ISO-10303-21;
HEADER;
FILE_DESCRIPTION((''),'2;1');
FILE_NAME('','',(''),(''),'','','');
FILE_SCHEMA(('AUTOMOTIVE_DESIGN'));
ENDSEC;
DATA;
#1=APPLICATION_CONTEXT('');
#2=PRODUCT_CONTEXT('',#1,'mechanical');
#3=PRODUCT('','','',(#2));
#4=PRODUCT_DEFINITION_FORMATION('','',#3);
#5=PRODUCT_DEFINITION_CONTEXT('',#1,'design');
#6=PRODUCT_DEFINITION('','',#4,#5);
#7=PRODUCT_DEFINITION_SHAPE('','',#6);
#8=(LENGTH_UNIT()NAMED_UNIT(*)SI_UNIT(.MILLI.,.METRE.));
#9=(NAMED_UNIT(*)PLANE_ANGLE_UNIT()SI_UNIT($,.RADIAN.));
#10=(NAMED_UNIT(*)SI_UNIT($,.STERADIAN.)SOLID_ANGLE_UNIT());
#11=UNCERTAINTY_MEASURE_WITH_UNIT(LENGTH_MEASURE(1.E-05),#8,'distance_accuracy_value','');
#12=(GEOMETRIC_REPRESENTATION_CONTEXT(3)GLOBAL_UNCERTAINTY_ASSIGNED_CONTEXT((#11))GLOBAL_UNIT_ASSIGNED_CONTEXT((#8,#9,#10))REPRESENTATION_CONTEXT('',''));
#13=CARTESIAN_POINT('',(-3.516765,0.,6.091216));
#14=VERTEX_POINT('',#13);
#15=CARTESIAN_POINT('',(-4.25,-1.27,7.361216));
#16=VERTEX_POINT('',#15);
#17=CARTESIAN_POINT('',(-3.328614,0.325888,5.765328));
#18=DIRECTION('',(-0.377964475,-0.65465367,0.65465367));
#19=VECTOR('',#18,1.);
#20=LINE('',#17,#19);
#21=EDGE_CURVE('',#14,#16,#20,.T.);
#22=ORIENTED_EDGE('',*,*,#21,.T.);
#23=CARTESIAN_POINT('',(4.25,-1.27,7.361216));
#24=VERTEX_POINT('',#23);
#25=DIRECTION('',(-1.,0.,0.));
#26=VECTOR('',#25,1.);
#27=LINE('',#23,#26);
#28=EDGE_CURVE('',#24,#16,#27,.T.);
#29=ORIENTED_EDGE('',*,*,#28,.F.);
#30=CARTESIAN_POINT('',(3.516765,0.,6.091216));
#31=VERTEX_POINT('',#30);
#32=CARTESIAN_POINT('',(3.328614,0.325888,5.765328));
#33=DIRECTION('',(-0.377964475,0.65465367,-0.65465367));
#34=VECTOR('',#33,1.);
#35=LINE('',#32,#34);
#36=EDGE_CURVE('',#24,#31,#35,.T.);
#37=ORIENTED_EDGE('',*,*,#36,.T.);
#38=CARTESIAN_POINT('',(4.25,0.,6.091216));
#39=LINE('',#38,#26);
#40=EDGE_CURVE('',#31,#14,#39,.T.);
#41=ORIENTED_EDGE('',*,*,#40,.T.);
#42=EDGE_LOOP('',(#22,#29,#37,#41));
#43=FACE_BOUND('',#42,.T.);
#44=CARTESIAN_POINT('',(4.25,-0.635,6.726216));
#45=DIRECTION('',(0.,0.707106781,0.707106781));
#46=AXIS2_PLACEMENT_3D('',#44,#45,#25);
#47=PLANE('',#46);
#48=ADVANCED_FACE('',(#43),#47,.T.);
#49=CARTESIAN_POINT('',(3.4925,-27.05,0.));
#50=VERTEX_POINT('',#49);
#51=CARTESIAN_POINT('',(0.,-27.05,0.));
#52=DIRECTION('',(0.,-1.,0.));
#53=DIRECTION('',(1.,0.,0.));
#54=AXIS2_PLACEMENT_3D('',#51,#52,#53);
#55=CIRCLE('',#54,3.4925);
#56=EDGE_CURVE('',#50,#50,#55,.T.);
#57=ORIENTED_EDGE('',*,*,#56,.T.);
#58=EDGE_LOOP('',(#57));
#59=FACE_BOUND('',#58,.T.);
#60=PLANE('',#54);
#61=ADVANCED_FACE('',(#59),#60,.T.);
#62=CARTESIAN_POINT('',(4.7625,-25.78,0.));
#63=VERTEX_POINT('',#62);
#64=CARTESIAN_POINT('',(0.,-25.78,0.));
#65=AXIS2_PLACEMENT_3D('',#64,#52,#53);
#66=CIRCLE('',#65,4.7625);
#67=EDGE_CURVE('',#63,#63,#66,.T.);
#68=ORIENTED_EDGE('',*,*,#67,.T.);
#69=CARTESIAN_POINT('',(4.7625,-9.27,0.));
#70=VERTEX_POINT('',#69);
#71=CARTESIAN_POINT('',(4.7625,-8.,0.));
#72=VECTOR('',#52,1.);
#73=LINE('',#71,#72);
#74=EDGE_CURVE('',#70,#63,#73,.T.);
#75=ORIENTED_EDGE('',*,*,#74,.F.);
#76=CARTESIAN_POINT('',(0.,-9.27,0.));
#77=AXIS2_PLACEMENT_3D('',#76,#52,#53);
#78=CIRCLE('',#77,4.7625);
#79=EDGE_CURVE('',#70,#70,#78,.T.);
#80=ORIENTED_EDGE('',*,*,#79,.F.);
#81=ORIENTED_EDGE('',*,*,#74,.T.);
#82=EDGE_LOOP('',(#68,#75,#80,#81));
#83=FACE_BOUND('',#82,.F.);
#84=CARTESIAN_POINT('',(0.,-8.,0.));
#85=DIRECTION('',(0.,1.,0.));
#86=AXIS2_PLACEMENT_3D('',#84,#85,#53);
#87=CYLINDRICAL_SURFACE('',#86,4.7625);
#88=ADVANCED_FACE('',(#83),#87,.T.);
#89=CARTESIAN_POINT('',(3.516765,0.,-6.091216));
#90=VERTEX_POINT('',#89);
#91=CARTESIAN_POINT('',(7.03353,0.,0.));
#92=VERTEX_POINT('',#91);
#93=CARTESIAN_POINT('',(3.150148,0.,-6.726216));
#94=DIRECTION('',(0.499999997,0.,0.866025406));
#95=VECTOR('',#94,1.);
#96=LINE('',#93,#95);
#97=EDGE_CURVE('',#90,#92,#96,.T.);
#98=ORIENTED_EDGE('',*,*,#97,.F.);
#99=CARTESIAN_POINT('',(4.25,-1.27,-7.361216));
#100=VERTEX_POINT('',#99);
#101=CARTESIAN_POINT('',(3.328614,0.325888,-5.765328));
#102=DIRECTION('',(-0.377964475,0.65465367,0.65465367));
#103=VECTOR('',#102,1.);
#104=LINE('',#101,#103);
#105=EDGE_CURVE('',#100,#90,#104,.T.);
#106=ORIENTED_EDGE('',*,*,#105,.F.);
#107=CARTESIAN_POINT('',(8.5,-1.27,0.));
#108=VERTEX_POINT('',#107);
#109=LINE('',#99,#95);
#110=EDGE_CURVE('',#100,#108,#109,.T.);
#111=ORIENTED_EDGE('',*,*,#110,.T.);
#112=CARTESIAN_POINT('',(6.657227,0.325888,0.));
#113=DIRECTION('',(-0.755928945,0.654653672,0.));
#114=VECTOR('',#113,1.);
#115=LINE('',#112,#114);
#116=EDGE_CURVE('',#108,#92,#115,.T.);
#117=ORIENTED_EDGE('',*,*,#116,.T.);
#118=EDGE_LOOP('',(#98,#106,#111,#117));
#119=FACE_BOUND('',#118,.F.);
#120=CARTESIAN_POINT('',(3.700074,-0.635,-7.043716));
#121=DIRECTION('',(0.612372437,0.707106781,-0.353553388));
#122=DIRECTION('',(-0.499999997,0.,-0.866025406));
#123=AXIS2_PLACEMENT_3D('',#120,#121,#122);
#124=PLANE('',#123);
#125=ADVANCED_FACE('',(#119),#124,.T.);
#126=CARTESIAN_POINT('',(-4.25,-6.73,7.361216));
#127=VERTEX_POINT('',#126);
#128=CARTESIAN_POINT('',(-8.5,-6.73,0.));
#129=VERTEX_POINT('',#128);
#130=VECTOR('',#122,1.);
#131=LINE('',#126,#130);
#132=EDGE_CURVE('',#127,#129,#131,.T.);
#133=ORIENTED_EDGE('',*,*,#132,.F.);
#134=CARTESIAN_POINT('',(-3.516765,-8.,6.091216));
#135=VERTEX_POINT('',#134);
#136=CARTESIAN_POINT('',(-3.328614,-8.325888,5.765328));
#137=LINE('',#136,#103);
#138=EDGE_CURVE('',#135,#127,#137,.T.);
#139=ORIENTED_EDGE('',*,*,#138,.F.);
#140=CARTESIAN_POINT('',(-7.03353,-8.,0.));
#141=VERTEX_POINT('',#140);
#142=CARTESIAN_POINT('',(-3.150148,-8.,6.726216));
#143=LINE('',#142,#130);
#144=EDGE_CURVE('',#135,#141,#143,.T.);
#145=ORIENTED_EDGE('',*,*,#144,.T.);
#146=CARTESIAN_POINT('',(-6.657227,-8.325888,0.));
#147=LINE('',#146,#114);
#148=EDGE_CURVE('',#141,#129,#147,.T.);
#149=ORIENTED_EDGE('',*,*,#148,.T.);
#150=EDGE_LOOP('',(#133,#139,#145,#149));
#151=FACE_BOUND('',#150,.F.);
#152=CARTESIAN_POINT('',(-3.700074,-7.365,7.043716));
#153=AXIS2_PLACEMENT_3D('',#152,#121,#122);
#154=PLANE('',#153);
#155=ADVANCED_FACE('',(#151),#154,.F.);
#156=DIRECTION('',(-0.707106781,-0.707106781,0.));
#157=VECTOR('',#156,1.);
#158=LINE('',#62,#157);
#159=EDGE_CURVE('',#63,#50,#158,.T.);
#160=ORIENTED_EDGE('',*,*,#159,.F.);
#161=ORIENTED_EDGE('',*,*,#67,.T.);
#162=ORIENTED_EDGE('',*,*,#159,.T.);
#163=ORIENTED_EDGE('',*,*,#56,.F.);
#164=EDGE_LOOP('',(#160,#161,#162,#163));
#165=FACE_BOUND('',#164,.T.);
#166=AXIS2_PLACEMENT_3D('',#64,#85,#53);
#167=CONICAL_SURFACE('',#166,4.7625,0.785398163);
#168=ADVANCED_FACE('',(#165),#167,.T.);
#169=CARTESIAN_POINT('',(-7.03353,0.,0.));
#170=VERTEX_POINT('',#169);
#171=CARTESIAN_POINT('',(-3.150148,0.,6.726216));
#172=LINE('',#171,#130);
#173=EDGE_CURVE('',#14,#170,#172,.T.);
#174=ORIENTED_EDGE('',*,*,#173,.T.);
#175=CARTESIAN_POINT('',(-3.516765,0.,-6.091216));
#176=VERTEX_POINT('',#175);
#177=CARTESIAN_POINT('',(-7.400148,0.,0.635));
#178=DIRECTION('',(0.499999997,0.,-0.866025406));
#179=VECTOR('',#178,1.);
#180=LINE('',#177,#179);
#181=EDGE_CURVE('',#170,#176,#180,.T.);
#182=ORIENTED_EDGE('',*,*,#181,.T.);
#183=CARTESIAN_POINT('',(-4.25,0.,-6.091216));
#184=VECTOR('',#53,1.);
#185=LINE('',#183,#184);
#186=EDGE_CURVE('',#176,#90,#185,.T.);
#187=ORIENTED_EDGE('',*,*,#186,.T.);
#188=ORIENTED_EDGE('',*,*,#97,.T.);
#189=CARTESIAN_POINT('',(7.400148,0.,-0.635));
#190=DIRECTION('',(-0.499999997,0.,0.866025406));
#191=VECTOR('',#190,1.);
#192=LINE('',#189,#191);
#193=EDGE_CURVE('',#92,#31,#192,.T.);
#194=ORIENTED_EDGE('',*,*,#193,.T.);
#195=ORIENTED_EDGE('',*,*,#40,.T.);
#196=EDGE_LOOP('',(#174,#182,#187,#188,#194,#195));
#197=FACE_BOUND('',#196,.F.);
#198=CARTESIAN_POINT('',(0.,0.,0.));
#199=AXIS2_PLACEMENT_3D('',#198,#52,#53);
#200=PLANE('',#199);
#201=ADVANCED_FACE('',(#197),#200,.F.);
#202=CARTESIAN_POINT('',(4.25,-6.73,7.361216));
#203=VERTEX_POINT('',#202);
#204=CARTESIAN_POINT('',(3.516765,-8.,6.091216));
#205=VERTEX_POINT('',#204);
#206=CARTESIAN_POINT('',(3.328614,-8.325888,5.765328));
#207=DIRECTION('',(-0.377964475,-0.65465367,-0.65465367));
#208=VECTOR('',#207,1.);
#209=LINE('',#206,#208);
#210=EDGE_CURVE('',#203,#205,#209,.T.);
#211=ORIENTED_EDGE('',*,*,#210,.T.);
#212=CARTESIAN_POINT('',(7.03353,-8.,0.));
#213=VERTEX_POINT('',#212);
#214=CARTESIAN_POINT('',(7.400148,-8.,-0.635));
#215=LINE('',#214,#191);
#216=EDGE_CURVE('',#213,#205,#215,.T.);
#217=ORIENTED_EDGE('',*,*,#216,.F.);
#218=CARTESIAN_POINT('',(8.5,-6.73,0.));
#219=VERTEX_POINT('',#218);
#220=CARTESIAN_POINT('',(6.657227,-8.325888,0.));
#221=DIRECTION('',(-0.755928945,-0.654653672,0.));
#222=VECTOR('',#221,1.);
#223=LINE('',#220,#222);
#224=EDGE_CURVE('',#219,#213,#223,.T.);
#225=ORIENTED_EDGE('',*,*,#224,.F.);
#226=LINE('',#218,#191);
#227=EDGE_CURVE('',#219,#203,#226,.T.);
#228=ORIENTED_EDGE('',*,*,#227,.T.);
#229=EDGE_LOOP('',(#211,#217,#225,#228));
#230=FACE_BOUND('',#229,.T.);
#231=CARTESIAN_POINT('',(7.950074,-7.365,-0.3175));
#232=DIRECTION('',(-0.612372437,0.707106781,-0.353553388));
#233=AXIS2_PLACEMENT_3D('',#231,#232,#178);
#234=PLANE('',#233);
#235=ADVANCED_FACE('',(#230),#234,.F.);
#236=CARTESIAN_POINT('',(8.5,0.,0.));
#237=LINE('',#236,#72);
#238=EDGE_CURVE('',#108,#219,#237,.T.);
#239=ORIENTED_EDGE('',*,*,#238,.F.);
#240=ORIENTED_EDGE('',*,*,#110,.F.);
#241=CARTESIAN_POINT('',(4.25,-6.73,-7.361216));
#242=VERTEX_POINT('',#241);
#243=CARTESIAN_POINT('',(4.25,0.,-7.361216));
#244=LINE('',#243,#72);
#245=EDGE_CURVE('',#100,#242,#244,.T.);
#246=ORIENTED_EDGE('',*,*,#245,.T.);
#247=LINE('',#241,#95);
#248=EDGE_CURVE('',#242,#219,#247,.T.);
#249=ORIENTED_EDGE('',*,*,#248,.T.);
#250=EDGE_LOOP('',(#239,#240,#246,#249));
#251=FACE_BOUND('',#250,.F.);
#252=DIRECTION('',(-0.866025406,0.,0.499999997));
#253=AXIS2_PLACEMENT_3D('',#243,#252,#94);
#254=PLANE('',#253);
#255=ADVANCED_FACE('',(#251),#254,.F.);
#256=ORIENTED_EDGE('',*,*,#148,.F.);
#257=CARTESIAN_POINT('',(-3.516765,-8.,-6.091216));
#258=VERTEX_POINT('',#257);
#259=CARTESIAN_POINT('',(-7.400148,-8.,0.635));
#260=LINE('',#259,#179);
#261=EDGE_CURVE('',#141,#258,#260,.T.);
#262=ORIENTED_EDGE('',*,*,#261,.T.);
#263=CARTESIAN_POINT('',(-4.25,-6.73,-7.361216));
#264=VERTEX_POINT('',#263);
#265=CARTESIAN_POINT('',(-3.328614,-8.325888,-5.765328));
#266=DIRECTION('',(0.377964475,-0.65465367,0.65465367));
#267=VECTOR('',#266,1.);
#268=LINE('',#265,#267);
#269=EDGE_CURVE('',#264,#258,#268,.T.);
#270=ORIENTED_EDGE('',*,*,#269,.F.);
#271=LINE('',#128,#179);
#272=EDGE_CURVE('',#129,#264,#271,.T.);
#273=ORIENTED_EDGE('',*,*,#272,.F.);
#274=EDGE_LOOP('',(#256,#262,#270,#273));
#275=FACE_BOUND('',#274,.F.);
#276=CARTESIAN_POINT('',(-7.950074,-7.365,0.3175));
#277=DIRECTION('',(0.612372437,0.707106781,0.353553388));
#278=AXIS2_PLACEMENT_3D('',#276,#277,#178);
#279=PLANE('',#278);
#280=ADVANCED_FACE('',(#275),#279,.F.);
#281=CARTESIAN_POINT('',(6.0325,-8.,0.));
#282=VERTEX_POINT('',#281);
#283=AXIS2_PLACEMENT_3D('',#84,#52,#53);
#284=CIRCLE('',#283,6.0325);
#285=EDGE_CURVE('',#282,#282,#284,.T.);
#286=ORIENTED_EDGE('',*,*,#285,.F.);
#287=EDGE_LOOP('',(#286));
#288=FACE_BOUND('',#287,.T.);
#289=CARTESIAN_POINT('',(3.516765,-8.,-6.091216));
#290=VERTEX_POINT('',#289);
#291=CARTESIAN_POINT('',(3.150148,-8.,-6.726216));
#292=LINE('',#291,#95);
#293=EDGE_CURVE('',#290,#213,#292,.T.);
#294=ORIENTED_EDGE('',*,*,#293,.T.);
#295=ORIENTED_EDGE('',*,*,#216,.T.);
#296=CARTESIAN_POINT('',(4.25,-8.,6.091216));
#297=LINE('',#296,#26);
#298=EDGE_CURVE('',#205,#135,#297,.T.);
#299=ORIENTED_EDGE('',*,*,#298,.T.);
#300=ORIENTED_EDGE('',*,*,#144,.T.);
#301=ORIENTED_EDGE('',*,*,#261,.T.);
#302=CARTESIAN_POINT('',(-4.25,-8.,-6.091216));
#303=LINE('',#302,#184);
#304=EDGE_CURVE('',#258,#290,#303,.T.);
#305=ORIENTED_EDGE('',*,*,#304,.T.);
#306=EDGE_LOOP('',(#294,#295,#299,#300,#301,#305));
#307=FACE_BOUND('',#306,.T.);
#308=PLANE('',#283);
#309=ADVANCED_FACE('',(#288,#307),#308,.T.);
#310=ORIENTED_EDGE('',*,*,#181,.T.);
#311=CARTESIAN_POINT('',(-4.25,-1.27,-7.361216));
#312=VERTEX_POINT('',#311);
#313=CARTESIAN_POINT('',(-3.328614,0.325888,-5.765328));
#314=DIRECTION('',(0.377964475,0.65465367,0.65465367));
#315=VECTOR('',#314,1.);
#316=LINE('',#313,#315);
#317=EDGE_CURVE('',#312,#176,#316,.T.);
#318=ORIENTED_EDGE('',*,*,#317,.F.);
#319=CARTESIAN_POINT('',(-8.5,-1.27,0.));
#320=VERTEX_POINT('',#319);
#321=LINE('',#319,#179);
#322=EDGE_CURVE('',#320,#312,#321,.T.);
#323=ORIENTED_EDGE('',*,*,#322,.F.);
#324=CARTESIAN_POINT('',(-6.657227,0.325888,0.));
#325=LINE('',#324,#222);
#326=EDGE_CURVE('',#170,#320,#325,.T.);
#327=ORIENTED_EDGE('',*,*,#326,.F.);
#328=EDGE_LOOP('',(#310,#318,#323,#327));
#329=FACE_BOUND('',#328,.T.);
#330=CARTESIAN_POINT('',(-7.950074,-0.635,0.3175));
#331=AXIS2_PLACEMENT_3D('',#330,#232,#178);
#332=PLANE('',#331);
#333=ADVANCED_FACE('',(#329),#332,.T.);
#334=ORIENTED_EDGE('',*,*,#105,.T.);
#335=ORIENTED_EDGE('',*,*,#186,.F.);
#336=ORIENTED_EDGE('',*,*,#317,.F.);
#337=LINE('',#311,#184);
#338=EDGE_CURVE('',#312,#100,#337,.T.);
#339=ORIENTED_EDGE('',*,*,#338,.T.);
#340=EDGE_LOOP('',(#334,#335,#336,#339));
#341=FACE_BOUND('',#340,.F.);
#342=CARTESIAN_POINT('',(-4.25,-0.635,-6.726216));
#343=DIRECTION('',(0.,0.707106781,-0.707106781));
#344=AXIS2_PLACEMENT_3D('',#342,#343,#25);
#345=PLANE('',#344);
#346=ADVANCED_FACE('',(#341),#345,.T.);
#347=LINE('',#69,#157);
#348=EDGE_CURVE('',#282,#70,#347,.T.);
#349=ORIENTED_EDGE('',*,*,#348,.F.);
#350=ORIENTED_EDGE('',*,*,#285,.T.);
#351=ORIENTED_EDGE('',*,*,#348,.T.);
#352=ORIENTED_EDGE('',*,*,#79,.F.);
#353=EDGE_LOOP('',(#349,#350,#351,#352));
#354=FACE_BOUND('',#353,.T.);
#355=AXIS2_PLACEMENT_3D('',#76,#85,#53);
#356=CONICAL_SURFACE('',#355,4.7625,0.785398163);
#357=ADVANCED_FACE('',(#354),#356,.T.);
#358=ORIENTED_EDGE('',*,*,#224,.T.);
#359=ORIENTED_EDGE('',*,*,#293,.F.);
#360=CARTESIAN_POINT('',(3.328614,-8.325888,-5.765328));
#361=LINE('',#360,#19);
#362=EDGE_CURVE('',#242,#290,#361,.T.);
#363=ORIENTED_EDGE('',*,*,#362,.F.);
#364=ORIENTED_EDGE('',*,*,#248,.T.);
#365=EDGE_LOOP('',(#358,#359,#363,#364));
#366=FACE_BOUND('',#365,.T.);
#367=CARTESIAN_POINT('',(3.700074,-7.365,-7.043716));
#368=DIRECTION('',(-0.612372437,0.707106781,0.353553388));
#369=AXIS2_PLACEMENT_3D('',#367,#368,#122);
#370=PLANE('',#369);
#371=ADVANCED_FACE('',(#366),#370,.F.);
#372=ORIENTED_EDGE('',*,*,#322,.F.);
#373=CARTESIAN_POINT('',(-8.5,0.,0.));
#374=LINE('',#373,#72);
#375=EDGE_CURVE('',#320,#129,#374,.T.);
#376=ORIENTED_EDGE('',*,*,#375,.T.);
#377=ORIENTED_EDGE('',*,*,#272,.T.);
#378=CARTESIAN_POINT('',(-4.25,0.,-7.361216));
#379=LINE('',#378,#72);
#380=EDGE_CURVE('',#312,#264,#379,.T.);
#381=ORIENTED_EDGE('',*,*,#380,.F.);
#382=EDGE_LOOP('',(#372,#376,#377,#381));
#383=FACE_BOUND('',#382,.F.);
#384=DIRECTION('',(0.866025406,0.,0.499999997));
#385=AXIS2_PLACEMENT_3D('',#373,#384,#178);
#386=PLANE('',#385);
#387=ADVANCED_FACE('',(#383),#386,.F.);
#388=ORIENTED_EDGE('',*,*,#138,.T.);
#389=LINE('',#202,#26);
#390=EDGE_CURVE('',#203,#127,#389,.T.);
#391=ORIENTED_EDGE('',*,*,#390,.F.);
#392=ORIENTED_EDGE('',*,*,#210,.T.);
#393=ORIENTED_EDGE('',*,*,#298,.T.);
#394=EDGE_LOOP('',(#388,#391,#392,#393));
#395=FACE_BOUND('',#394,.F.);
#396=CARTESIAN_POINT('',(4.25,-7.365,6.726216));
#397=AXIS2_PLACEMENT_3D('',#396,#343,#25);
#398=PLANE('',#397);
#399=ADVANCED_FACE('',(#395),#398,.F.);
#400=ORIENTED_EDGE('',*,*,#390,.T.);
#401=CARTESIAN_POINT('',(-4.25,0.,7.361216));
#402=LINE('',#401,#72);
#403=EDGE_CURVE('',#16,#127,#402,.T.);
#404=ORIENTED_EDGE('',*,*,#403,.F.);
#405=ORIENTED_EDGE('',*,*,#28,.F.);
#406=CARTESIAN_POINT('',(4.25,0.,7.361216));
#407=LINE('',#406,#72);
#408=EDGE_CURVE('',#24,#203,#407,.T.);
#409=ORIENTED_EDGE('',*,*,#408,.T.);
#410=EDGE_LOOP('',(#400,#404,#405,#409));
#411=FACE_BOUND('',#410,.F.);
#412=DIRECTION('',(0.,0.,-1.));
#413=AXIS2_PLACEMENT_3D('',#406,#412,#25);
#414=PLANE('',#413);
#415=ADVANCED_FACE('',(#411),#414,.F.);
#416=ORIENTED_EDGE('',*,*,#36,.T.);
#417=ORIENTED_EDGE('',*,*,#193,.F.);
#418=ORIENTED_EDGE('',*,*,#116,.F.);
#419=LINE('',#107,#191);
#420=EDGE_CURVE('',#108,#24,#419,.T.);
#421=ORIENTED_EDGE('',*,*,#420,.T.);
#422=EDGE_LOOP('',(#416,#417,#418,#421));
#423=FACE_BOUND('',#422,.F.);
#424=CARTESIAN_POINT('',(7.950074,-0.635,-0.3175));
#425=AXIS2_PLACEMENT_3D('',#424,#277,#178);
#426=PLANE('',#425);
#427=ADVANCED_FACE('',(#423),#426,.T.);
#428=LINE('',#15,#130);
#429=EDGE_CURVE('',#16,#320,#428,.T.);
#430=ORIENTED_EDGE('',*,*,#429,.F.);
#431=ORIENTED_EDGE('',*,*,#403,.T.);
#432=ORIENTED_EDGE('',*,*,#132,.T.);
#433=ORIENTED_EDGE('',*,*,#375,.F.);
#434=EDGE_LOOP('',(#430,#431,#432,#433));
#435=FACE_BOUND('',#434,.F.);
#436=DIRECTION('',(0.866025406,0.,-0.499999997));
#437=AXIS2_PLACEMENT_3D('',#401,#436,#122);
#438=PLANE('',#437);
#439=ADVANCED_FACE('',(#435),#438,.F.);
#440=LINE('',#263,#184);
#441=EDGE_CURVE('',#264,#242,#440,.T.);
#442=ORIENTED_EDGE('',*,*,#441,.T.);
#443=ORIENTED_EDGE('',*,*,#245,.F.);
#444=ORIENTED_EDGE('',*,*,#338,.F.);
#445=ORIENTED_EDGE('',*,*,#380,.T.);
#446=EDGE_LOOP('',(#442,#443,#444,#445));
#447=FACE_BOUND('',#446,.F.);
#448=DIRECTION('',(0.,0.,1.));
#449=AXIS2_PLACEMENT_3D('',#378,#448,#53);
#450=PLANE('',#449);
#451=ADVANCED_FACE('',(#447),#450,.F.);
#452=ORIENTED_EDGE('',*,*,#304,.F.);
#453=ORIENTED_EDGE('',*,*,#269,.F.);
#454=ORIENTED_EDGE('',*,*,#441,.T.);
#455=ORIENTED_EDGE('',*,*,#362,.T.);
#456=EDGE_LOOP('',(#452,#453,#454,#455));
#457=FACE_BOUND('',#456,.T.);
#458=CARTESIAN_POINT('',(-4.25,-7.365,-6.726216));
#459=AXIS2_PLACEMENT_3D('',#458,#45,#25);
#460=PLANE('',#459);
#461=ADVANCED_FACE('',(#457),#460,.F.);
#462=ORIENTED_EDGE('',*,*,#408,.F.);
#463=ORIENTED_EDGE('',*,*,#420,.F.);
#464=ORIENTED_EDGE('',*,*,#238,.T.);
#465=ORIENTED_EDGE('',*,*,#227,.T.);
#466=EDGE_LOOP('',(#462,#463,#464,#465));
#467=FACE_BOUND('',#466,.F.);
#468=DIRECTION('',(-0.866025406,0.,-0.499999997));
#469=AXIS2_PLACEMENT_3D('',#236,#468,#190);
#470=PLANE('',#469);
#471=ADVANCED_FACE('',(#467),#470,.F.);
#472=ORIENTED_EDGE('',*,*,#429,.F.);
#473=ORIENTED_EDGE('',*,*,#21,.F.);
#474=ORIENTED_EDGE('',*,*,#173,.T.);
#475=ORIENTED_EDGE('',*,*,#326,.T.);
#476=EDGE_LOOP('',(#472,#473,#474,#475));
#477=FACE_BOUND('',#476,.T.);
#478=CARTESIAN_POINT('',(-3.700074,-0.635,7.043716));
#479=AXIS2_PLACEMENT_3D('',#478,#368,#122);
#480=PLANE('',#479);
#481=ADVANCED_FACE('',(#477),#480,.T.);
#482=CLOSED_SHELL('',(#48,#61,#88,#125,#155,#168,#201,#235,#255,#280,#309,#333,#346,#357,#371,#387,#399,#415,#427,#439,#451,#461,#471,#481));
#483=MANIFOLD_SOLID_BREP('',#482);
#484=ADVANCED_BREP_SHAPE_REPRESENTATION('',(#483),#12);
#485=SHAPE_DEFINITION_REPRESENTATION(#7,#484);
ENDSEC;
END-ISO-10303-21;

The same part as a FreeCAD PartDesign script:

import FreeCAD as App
import Part
import Sketcher
Q = App.Units.Quantity


def edges_at(feature, points):
    """Names of the edges that pass closest to the given points."""
    edges = feature.Shape.Edges
    near = lambda p: min(range(len(edges)), key=lambda i: edges[i].distToShape(Part.Vertex(*p))[0])
    return sorted({f"Edge{near(p) + 1}" for p in points})

doc = App.newDocument("Part")
body = doc.addObject("PartDesign::Body", "Body")

# Sketch on XZ plane
sketch1 = doc.addObject("Sketcher::SketchObject", "Sketch")
body.addObject(sketch1)
sketch1.AttachmentSupport = (doc.XZ_Plane, [""])
sketch1.MapMode = "FlatFace"
sketch1.addGeometry(Part.LineSegment(App.Vector(4, -7, 0), App.Vector(8, 0, 0)), False)
sketch1.addGeometry(Part.LineSegment(App.Vector(8, 0, 0), App.Vector(4, 7, 0)), False)
sketch1.addGeometry(Part.LineSegment(App.Vector(4, 7, 0), App.Vector(-4, 7, 0)), False)
sketch1.addGeometry(Part.LineSegment(App.Vector(-4, 7, 0), App.Vector(-8, 0, 0)), False)
sketch1.addGeometry(Part.LineSegment(App.Vector(-8, 0, 0), App.Vector(-4, -7, 0)), False)
sketch1.addGeometry(Part.LineSegment(App.Vector(-4, -7, 0), App.Vector(4, -7, 0)), False)
sketch1.addConstraint(Sketcher.Constraint("Coincident", 0, 2, 1, 1))
sketch1.addConstraint(Sketcher.Constraint("Coincident", 1, 2, 2, 1))
sketch1.addConstraint(Sketcher.Constraint("Coincident", 2, 2, 3, 1))
sketch1.addConstraint(Sketcher.Constraint("Coincident", 3, 2, 4, 1))
sketch1.addConstraint(Sketcher.Constraint("Coincident", 4, 2, 5, 1))
sketch1.addConstraint(Sketcher.Constraint("Coincident", 5, 2, 0, 1))
sketch1.addConstraint(Sketcher.Constraint("Horizontal", 2))
sketch1.addConstraint(Sketcher.Constraint("Horizontal", 5))
sketch1.addConstraint(Sketcher.Constraint("Symmetric", 0, 2, 3, 2, -1, 1))
sketch1.addConstraint(Sketcher.Constraint("Symmetric", 1, 2, 4, 2, -1, 1))
sketch1.addConstraint(Sketcher.Constraint("PointOnObject", 0, 2, -1))
sketch1.addConstraint(Sketcher.Constraint("Parallel", 0, 3))
sketch1.addConstraint(Sketcher.Constraint("Vertical", 2, 2, 4, 2))
sketch1.addConstraint(Sketcher.Constraint("Angle", 0, Q("60 deg")))
sketch1.addConstraint(Sketcher.Constraint("DistanceX", 2, 2, 2, 1, 8.5))
sketch1.addConstraint(Sketcher.Constraint("Distance", 0, 8.5))
pad1 = doc.addObject("PartDesign::Pad", "Pad")
body.addObject(pad1)
pad1.Profile = sketch1
pad1.Length = 8

# Sketch on XZ plane
sketch2 = doc.addObject("Sketcher::SketchObject", "Sketch001")
body.addObject(sketch2)
sketch2.AttachmentSupport = (doc.XZ_Plane, [""])
sketch2.MapMode = "FlatFace"
sketch2.AttachmentOffset = App.Placement(App.Vector(0, 0, 8), App.Rotation())
sketch2.addGeometry(Part.Circle(App.Vector(0, 0, 0), App.Vector(0, 0, 1), 4.8), False)
sketch2.addConstraint(Sketcher.Constraint("Coincident", 0, 3, -1, 1))
sketch2.addConstraint(Sketcher.Constraint("Diameter", 0, Q("0.375 in")))
pad2 = doc.addObject("PartDesign::Pad", "Pad001")
body.addObject(pad2)
pad2.Profile = sketch2
pad2.Length = Q("0.75 in")
doc.recompute()

chamfer = doc.addObject("PartDesign::Chamfer", "Chamfer")
body.addObject(chamfer)
chamfer.Base = (pad2, edges_at(pad2, [
    (-4.763, -27.05, 0),
    (6.375, 0, 3.681),
    (0, 0, -7.361),
    (6.375, 0, -3.681),
    (-6.375, 0, -3.681),
    (-6.375, 0, 3.681),
    (0, 0, 7.361),
    (6.375, -8, 3.681),
    (6.375, -8, -3.681),
    (4.763, -17.525, 0),
    (-4.763, -8, 0),
    (0, -8, 7.361),
    (-6.375, -8, 3.681),
    (0, -8, -7.361),
    (-6.375, -8, -3.681),
]))
chamfer.Size = Q("0.05 in")

doc.recompute()
